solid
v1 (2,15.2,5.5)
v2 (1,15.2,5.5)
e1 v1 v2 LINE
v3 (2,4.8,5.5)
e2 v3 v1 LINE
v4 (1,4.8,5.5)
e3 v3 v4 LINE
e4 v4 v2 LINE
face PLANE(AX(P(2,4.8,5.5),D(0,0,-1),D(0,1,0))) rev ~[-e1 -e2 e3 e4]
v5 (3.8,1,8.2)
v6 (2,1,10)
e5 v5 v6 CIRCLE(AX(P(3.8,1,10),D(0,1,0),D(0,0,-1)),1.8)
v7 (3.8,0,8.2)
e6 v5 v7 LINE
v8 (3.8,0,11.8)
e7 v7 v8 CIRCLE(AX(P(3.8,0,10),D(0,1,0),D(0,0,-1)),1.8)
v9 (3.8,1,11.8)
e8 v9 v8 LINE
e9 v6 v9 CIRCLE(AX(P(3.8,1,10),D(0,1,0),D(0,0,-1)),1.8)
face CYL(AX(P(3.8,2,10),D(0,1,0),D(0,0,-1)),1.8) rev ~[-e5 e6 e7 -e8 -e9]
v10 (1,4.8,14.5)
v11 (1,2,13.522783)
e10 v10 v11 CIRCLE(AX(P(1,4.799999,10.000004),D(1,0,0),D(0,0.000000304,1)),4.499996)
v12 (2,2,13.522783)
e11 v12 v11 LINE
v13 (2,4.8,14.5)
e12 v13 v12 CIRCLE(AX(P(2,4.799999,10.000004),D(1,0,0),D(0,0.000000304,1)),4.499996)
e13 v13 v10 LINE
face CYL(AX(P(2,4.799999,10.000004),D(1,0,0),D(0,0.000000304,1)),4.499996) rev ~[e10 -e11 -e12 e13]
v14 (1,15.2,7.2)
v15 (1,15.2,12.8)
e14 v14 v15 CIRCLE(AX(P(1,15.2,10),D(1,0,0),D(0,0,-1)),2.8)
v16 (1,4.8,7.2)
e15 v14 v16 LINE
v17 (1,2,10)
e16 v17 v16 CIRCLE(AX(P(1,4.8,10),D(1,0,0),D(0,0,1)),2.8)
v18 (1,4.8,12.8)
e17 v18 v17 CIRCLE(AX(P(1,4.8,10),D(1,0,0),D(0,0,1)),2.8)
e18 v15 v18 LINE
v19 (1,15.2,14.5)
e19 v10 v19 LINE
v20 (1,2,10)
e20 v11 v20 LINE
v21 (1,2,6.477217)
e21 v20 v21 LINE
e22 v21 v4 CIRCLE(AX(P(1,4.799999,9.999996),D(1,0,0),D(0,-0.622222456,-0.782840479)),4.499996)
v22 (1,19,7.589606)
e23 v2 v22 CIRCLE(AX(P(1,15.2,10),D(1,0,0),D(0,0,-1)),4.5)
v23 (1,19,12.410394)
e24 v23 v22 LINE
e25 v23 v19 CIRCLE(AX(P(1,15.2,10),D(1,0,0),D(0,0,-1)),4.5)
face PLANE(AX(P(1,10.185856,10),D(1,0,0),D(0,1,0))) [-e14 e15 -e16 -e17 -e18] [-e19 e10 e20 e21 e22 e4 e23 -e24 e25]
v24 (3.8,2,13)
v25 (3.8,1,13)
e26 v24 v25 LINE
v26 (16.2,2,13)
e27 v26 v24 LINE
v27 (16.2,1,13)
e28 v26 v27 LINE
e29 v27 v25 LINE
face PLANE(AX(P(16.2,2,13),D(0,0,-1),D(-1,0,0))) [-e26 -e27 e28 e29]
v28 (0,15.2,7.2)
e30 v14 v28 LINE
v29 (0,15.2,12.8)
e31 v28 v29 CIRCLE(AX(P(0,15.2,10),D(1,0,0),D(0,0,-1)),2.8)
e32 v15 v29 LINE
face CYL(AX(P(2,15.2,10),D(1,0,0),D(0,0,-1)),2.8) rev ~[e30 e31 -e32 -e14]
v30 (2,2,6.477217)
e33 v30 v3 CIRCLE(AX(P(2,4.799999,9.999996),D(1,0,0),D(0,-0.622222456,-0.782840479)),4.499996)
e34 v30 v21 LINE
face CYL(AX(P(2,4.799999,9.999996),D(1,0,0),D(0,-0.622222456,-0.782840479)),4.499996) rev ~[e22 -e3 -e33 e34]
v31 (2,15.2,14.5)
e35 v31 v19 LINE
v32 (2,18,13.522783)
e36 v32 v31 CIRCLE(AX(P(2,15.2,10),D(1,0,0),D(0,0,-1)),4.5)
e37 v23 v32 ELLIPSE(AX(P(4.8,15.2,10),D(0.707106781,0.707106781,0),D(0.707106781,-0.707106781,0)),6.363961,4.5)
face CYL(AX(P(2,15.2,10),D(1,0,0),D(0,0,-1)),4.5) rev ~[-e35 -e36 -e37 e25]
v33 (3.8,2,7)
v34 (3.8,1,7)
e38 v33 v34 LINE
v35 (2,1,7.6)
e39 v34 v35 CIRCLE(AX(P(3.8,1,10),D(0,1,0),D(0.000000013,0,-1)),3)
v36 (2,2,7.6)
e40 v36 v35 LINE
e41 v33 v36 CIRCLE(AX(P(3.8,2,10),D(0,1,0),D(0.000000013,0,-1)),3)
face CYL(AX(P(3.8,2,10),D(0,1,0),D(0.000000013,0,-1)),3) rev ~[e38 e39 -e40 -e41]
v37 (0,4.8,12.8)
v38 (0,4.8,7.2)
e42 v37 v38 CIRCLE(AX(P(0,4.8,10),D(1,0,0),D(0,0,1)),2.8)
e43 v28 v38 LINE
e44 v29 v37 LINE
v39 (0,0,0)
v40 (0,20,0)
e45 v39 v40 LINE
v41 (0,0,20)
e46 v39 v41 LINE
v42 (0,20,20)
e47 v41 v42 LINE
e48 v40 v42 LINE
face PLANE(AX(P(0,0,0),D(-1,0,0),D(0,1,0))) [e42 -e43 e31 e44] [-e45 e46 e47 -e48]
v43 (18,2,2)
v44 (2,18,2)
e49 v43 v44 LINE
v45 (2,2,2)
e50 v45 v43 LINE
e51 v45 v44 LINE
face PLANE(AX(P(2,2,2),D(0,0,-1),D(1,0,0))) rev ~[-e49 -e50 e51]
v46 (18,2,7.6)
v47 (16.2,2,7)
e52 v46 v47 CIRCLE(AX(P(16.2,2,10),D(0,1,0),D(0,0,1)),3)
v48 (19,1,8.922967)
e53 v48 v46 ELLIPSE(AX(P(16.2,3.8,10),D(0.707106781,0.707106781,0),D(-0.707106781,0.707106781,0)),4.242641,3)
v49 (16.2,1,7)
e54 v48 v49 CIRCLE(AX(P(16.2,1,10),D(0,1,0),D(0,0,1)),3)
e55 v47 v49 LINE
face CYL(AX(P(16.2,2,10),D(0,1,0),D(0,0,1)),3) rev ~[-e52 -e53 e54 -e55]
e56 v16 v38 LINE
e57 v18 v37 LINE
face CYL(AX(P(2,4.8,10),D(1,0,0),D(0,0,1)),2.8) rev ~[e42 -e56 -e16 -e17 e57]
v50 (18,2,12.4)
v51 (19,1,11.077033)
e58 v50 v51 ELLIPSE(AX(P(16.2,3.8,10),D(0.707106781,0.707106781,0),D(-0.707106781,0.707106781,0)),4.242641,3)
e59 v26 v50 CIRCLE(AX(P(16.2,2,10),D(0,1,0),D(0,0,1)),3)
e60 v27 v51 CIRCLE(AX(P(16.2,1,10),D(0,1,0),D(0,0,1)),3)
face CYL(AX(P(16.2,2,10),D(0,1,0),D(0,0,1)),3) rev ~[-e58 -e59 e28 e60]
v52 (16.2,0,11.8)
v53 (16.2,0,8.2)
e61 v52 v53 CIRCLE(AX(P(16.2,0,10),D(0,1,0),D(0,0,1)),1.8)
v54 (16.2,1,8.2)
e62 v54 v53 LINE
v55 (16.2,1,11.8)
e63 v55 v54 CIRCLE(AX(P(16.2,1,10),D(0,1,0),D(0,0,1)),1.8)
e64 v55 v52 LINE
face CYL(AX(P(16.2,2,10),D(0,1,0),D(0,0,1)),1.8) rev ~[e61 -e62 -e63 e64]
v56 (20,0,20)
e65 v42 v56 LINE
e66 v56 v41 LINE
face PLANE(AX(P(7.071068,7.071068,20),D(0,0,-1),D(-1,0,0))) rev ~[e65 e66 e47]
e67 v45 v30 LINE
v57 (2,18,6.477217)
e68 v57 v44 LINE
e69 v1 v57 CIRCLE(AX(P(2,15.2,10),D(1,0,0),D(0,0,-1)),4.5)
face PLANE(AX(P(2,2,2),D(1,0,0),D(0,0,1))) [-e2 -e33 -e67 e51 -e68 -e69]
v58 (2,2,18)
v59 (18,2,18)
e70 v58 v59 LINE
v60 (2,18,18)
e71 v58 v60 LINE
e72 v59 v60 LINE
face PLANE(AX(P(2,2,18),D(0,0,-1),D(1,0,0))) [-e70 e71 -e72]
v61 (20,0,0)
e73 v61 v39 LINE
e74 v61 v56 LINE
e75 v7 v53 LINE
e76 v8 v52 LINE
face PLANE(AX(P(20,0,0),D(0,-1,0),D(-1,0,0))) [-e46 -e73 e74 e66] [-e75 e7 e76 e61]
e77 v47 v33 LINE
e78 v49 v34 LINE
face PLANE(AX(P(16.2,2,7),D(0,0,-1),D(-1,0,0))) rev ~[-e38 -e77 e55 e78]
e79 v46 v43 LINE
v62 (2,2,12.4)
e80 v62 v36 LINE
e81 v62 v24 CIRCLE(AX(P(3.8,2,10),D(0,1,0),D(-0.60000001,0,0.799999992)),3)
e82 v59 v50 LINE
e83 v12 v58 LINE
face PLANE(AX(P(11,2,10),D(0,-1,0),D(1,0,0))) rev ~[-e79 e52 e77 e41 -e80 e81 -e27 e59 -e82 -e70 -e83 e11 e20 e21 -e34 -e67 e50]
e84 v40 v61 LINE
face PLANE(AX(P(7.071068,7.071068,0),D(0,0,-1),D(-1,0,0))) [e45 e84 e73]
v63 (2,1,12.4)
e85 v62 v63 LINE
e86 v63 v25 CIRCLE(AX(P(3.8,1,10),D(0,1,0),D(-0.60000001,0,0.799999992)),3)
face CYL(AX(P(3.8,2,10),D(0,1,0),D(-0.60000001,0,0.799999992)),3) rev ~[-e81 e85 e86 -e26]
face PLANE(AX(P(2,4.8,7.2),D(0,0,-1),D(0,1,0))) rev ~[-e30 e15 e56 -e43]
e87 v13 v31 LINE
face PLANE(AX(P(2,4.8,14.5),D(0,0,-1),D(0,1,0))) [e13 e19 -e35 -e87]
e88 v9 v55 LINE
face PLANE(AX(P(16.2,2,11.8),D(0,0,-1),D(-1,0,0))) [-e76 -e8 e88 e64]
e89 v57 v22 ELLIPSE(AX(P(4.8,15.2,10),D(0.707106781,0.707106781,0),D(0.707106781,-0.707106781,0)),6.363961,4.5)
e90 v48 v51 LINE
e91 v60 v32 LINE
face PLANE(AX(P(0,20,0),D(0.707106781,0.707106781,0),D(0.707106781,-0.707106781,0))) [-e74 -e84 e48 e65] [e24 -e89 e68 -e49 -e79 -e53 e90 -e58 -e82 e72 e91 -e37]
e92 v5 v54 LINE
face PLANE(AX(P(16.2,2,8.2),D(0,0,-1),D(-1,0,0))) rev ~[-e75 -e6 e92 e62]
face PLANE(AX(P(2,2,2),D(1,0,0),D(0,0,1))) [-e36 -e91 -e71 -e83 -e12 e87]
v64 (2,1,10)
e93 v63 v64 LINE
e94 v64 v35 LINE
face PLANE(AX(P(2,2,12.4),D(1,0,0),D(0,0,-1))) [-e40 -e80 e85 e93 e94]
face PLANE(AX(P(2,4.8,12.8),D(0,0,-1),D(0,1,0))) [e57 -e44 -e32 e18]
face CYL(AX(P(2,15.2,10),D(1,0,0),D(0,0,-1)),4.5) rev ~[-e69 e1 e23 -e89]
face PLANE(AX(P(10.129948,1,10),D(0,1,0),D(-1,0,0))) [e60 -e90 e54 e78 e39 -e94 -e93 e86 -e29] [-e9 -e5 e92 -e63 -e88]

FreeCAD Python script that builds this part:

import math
import FreeCAD as App
import Part
import Sketcher
from FreeCAD import Vector

doc = App.newDocument("Part")
body = doc.addObject("PartDesign::Body", "Body")

sketch1 = body.newObject("Sketcher::SketchObject", "Sketch")
sketch1.AttachmentSupport = (doc.getObject("XY_Plane"), [""])
sketch1.MapMode = "FlatFace"
sketch1.addGeometry([
    Part.LineSegment(Vector(0, 20, 0), Vector(0, 0, 0)),
    Part.LineSegment(Vector(0, 0, 0), Vector(20, 0, 0)),
    Part.LineSegment(Vector(20, 0, 0), Vector(0, 20, 0)),
], False)
sketch1.addConstraint([
    Sketcher.Constraint("Coincident", 0, 2, 1, 1),
    Sketcher.Constraint("Coincident", 1, 2, 2, 1),
    Sketcher.Constraint("Coincident", 2, 2, 0, 1),
    Sketcher.Constraint("Vertical", 0),
    Sketcher.Constraint("Horizontal", 1),
    Sketcher.Constraint("Coincident", 0, 2, -1, 1),
    Sketcher.Constraint("Equal", 1, 0),
    Sketcher.Constraint("DistanceX", 1, 1, 1, 2, 20.0),
])
pad1 = body.newObject("PartDesign::Pad", "Pad")
pad1.Profile = sketch1
pad1.Length = 20

sketch2 = body.newObject("Sketcher::SketchObject", "Sketch001")
sketch2.AttachmentSupport = (doc.getObject("XZ_Plane"), [""])
sketch2.MapMode = "FlatFace"
sketch2.AttachmentOffset = App.Placement(Vector(0, 0, -2), App.Rotation())
sketch2.addGeometry([
    Part.LineSegment(Vector(2, 18, 0), Vector(2, 2, 0)),
    Part.LineSegment(Vector(2, 2, 0), Vector(20, 2, 0)),
    Part.LineSegment(Vector(20, 2, 0), Vector(20, 18, 0)),
    Part.LineSegment(Vector(20, 18, 0), Vector(2, 18, 0)),
], False)
sketch2.addConstraint([
    Sketcher.Constraint("Coincident", 0, 2, 1, 1),
    Sketcher.Constraint("Coincident", 1, 2, 2, 1),
    Sketcher.Constraint("Coincident", 2, 2, 3, 1),
    Sketcher.Constraint("Coincident", 3, 2, 0, 1),
    Sketcher.Constraint("Vertical", 0),
    Sketcher.Constraint("Horizontal", 1),
    Sketcher.Constraint("Vertical", 2),
    Sketcher.Constraint("Horizontal", 3),
    Sketcher.Constraint("DistanceX", 1, 1, 1, 2, 18.0),
    Sketcher.Constraint("DistanceY", 0, 2, 0, 1, 16.0),
    Sketcher.Constraint("DistanceX", -1, 1, 0, 2, 2.0),
    Sketcher.Constraint("DistanceY", -1, 1, 0, 2, 2.0),
])
pocket1 = body.newObject("PartDesign::Pocket", "Pocket")
pocket1.Profile = sketch2
pocket1.Type = "ThroughAll"

sketch3 = body.newObject("Sketcher::SketchObject", "Sketch002")
sketch3.AttachmentSupport = (doc.getObject("YZ_Plane"), [""])
sketch3.MapMode = "FlatFace"
sketch3.AttachmentOffset = App.Placement(Vector(0, 0, 2), App.Rotation())
sketch3.addGeometry([
    Part.ArcOfCircle(Part.Circle(Vector(4.8, 10, 0), Vector(0, 0, 1), 2.8), math.radians(90), math.radians(270)),
    Part.LineSegment(Vector(4.8, 7.2, 0), Vector(15.2, 7.2, 0)),
    Part.ArcOfCircle(Part.Circle(Vector(15.2, 10, 0), Vector(0, 0, 1), 2.8), math.radians(-90), math.radians(90)),
    Part.LineSegment(Vector(15.2, 12.8, 0), Vector(4.8, 12.8, 0)),
], False)
sketch3.addConstraint([
    Sketcher.Constraint("Tangent", 0, 2, 1, 1),
    Sketcher.Constraint("Tangent", 1, 2, 2, 1),
    Sketcher.Constraint("Tangent", 2, 2, 3, 1),
    Sketcher.Constraint("Tangent", 3, 2, 0, 1),
    Sketcher.Constraint("Horizontal", 1),
    Sketcher.Constraint("Horizontal", 3),
    Sketcher.Constraint("Radius", 0, 2.8),
    Sketcher.Constraint("DistanceX", 1, 1, 1, 2, 10.4),
    Sketcher.Constraint("DistanceY", -1, 1, 0, 3, 10.0),
    Sketcher.Constraint("DistanceX", -1, 1, 0, 3, 4.8),
])
pocket2 = body.newObject("PartDesign::Pocket", "Pocket001")
pocket2.Profile = sketch3
pocket2.Type = "ThroughAll"

sketch4 = body.newObject("Sketcher::SketchObject", "Sketch003")
sketch4.AttachmentSupport = (doc.getObject("YZ_Plane"), [""])
sketch4.MapMode = "FlatFace"
sketch4.AttachmentOffset = App.Placement(Vector(0, 0, 2), App.Rotation())
sketch4.addGeometry([
    Part.ArcOfCircle(Part.Circle(Vector(15.2, 10, 0), Vector(0, 0, 1), 4.5), math.radians(-90), math.radians(90)),
    Part.LineSegment(Vector(15.2, 14.5, 0), Vector(4.8, 14.5, 0)),
    Part.ArcOfCircle(Part.Circle(Vector(4.799999, 10.000004, 0), Vector(0, 0, 1), 4.499996), math.radians(89.999983), math.radians(128.478612)),
    Part.LineSegment(Vector(2, 13.522783, 0), Vector(2, 6.477217, 0)),
    Part.ArcOfCircle(Part.Circle(Vector(4.799999, 9.999996, 0), Vector(0, 0, 1), 4.499996), math.radians(-128.478612), math.radians(-89.999983)),
    Part.LineSegment(Vector(4.8, 5.5, 0), Vector(15.2, 5.5, 0)),
], False)
sketch4.addConstraint([
    Sketcher.Constraint("Tangent", 0, 2, 1, 1),
    Sketcher.Constraint("Tangent", 1, 2, 2, 1),
    Sketcher.Constraint("Coincident", 2, 2, 3, 1),
    Sketcher.Constraint("Coincident", 3, 2, 4, 1),
    Sketcher.Constraint("Tangent", 4, 2, 5, 1),
    Sketcher.Constraint("Tangent", 5, 2, 0, 1),
    Sketcher.Constraint("Horizontal", 1),
    Sketcher.Constraint("Vertical", 3),
    Sketcher.Constraint("Horizontal", 5),
    Sketcher.Constraint("Coincident", 4, 3, 2, 3),
    Sketcher.Constraint("Equal", 2, 4),
    Sketcher.Constraint("Radius", 0, 4.5),
    Sketcher.Constraint("DistanceX", 1, 2, 1, 1, 10.4),
    Sketcher.Constraint("DistanceY", -1, 1, 0, 3, 10.0),
    Sketcher.Constraint("DistanceX", -1, 1, 2, 2, 2.0),
    Sketcher.Constraint("DistanceX", -1, 1, 0, 3, 15.2),
])
pocket3 = body.newObject("PartDesign::Pocket", "Pocket002")
pocket3.Profile = sketch4
pocket3.Type = "TwoLengths"
pocket3.Length = 1
pocket3.Length2 = 5

sketch5 = body.newObject("Sketcher::SketchObject", "Sketch004")
sketch5.AttachmentSupport = (doc.getObject("XZ_Plane"), [""])
sketch5.MapMode = "FlatFace"
sketch5.AttachmentOffset = App.Placement(Vector(0, 0, -2), App.Rotation())
sketch5.addGeometry([
    Part.ArcOfCircle(Part.Circle(Vector(16.2, 10, 0), Vector(0, 0, 1), 1.8), math.radians(-90), math.radians(90)),
    Part.LineSegment(Vector(16.2, 8.2, 0), Vector(3.8, 8.2, 0)),
    Part.ArcOfCircle(Part.Circle(Vector(3.8, 10, 0), Vector(0, 0, 1), 1.8), math.radians(90), math.radians(270)),
    Part.LineSegment(Vector(3.8, 11.8, 0), Vector(16.2, 11.8, 0)),
], False)
sketch5.addConstraint([
    Sketcher.Constraint("Tangent", 0, 1, 1, 1),
    Sketcher.Constraint("Tangent", 1, 2, 2, 2),
    Sketcher.Constraint("Tangent", 2, 1, 3, 1),
    Sketcher.Constraint("Tangent", 3, 2, 0, 2),
    Sketcher.Constraint("Horizontal", 1),
    Sketcher.Constraint("Horizontal", 3),
    Sketcher.Constraint("Radius", 0, 1.8),
    Sketcher.Constraint("DistanceX", 1, 2, 1, 1, 12.4),
    Sketcher.Constraint("DistanceY", -1, 1, 0, 3, 10.0),
    Sketcher.Constraint("DistanceX", -1, 1, 0, 3, 16.2),
])
pocket4 = body.newObject("PartDesign::Pocket", "Pocket003")
pocket4.Profile = sketch5
pocket4.Type = "ThroughAll"
pocket4.Reversed = True

sketch6 = body.newObject("Sketcher::SketchObject", "Sketch005")
sketch6.AttachmentSupport = (doc.getObject("XZ_Plane"), [""])
sketch6.MapMode = "FlatFace"
sketch6.AttachmentOffset = App.Placement(Vector(0, 0, -2), App.Rotation())
sketch6.addGeometry([
    Part.ArcOfCircle(Part.Circle(Vector(16.2, 10, 0), Vector(0, 0, 1), 3), math.radians(-90), math.radians(90)),
    Part.LineSegment(Vector(16.2, 7, 0), Vector(3.8, 7, 0)),
    Part.ArcOfCircle(Part.Circle(Vector(3.8, 10, 0), Vector(0, 0, 1), 3), math.radians(-126.869898), math.radians(-89.999999)),
    Part.LineSegment(Vector(2, 7.6, 0), Vector(2, 12.4, 0)),
    Part.ArcOfCircle(Part.Circle(Vector(3.8, 10, 0), Vector(0, 0, 1), 3), math.radians(89.999999), math.radians(126.869898)),
    Part.LineSegment(Vector(3.8, 13, 0), Vector(16.2, 13, 0)),
], False)
sketch6.addConstraint([
    Sketcher.Constraint("Tangent", 0, 1, 1, 1),
    Sketcher.Constraint("Tangent", 1, 2, 2, 2),
    Sketcher.Constraint("Coincident", 2, 1, 3, 1),
    Sketcher.Constraint("Coincident", 3, 2, 4, 2),
    Sketcher.Constraint("Tangent", 4, 1, 5, 1),
    Sketcher.Constraint("Tangent", 5, 2, 0, 2),
    Sketcher.Constraint("Horizontal", 1),
    Sketcher.Constraint("Vertical", 3),
    Sketcher.Constraint("Horizontal", 5),
    Sketcher.Constraint("Coincident", 4, 3, 2, 3),
    Sketcher.Constraint("Equal", 0, 2),
    Sketcher.Constraint("Radius", 0, 3.0),
    Sketcher.Constraint("DistanceX", 1, 2, 1, 1, 12.4),
    Sketcher.Constraint("DistanceY", 3, 1, 3, 2, 4.8),
    Sketcher.Constraint("DistanceY", -1, 1, 0, 3, 10.0),
    Sketcher.Constraint("DistanceX", -1, 1, 2, 1, 2.0),
])
pocket5 = body.newObject("PartDesign::Pocket", "Pocket004")
pocket5.Profile = sketch6
pocket5.Length = 1
pocket5.Reversed = True

doc.recompute()
